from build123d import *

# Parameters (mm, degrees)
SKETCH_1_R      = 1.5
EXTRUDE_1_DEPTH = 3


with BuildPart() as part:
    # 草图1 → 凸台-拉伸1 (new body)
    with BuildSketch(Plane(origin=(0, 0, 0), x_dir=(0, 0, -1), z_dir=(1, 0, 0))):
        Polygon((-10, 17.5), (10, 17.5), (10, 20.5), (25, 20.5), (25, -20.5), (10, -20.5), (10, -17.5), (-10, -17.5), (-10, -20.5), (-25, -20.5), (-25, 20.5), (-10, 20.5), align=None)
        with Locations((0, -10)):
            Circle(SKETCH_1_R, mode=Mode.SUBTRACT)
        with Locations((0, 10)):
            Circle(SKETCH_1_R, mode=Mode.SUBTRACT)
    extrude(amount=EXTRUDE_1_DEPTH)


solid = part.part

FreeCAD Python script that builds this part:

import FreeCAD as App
import Part
import Sketcher


def add_polygon(sketch, points):
    """Adds a closed chain of lines whose ends are joined by coincident constraints."""
    first, n = sketch.GeometryCount, len(points)
    for a, b in zip(points, points[1:] + points[:1]):
        sketch.addGeometry(Part.LineSegment(App.Vector(*a, 0), App.Vector(*b, 0)), False)
    for i in range(n):
        sketch.addConstraint(Sketcher.Constraint("Coincident", first + i, 2, first + (i + 1) % n, 1))

doc = App.newDocument("Part")
body = doc.addObject("PartDesign::Body", "Body")

sketch1 = body.newObject("Sketcher::SketchObject", "Sketch")
sketch1.AttachmentSupport = (doc.getObject("YZ_Plane"), [""])
sketch1.MapMode = "FlatFace"
add_polygon(sketch1, [(17.5, -10), (17.5, 10), (20.5, 10), (20.5, 25), (-20.5, 25), (-20.5, 10), (-17.5, 10), (-17.5, -10), (-20.5, -10), (-20.5, -25), (20.5, -25), (20.5, -10)])
sketch1.addGeometry(Part.Circle(App.Vector(-10, 0, 0), App.Vector(0, 0, 1), 1.5), False)
sketch1.addGeometry(Part.Circle(App.Vector(10, 0, 0), App.Vector(0, 0, 1), 1.5), False)
sketch1.addConstraint(Sketcher.Constraint("Vertical", 0))
sketch1.addConstraint(Sketcher.Constraint("Horizontal", 1))
sketch1.addConstraint(Sketcher.Constraint("Vertical", 2))
sketch1.addConstraint(Sketcher.Constraint("Horizontal", 3))
sketch1.addConstraint(Sketcher.Constraint("Vertical", 4))
sketch1.addConstraint(Sketcher.Constraint("Horizontal", 5))
sketch1.addConstraint(Sketcher.Constraint("Vertical", 6))
sketch1.addConstraint(Sketcher.Constraint("Horizontal", 7))
sketch1.addConstraint(Sketcher.Constraint("Vertical", 8))
sketch1.addConstraint(Sketcher.Constraint("Horizontal", 9))
sketch1.addConstraint(Sketcher.Constraint("Vertical", 10))
sketch1.addConstraint(Sketcher.Constraint("Horizontal", 11))
sketch1.addConstraint(Sketcher.Constraint("Equal", 12, 13))
sketch1.addConstraint(Sketcher.Constraint("Symmetric", 12, 3, 13, 3, -1, 1))
sketch1.addConstraint(Sketcher.Constraint("Symmetric", 0, 2, 6, 2, -1, 1))
sketch1.addConstraint(Sketcher.Constraint("Symmetric", 2, 2, 8, 2, -1, 1))
sketch1.addConstraint(Sketcher.Constraint("Symmetric", 4, 2, 10, 2, -1, 1))
sketch1.addConstraint(Sketcher.Constraint("Symmetric", 1, 2, 4, 2, -2))
sketch1.addConstraint(Sketcher.Constraint("PointOnObject", 12, 3, -1))
sketch1.addConstraint(Sketcher.Constraint("Diameter", 12, 3.0))
sketch1.addConstraint(Sketcher.Constraint("DistanceX", 1, 1, 1, 2, 3.0))
sketch1.addConstraint(Sketcher.Constraint("DistanceX", 3, 2, 3, 1, 41.0))
sketch1.addConstraint(Sketcher.Constraint("DistanceY", 0, 1, 0, 2, 20.0))
sketch1.addConstraint(Sketcher.Constraint("DistanceY", 2, 1, 2, 2, 15.0))
sketch1.addConstraint(Sketcher.Constraint("DistanceX", 12, 3, -1, 1, 10.0))
pad1 = body.newObject("PartDesign::Pad", "Pad")
pad1.Profile = sketch1
pad1.Length = 3

doc.recompute()
